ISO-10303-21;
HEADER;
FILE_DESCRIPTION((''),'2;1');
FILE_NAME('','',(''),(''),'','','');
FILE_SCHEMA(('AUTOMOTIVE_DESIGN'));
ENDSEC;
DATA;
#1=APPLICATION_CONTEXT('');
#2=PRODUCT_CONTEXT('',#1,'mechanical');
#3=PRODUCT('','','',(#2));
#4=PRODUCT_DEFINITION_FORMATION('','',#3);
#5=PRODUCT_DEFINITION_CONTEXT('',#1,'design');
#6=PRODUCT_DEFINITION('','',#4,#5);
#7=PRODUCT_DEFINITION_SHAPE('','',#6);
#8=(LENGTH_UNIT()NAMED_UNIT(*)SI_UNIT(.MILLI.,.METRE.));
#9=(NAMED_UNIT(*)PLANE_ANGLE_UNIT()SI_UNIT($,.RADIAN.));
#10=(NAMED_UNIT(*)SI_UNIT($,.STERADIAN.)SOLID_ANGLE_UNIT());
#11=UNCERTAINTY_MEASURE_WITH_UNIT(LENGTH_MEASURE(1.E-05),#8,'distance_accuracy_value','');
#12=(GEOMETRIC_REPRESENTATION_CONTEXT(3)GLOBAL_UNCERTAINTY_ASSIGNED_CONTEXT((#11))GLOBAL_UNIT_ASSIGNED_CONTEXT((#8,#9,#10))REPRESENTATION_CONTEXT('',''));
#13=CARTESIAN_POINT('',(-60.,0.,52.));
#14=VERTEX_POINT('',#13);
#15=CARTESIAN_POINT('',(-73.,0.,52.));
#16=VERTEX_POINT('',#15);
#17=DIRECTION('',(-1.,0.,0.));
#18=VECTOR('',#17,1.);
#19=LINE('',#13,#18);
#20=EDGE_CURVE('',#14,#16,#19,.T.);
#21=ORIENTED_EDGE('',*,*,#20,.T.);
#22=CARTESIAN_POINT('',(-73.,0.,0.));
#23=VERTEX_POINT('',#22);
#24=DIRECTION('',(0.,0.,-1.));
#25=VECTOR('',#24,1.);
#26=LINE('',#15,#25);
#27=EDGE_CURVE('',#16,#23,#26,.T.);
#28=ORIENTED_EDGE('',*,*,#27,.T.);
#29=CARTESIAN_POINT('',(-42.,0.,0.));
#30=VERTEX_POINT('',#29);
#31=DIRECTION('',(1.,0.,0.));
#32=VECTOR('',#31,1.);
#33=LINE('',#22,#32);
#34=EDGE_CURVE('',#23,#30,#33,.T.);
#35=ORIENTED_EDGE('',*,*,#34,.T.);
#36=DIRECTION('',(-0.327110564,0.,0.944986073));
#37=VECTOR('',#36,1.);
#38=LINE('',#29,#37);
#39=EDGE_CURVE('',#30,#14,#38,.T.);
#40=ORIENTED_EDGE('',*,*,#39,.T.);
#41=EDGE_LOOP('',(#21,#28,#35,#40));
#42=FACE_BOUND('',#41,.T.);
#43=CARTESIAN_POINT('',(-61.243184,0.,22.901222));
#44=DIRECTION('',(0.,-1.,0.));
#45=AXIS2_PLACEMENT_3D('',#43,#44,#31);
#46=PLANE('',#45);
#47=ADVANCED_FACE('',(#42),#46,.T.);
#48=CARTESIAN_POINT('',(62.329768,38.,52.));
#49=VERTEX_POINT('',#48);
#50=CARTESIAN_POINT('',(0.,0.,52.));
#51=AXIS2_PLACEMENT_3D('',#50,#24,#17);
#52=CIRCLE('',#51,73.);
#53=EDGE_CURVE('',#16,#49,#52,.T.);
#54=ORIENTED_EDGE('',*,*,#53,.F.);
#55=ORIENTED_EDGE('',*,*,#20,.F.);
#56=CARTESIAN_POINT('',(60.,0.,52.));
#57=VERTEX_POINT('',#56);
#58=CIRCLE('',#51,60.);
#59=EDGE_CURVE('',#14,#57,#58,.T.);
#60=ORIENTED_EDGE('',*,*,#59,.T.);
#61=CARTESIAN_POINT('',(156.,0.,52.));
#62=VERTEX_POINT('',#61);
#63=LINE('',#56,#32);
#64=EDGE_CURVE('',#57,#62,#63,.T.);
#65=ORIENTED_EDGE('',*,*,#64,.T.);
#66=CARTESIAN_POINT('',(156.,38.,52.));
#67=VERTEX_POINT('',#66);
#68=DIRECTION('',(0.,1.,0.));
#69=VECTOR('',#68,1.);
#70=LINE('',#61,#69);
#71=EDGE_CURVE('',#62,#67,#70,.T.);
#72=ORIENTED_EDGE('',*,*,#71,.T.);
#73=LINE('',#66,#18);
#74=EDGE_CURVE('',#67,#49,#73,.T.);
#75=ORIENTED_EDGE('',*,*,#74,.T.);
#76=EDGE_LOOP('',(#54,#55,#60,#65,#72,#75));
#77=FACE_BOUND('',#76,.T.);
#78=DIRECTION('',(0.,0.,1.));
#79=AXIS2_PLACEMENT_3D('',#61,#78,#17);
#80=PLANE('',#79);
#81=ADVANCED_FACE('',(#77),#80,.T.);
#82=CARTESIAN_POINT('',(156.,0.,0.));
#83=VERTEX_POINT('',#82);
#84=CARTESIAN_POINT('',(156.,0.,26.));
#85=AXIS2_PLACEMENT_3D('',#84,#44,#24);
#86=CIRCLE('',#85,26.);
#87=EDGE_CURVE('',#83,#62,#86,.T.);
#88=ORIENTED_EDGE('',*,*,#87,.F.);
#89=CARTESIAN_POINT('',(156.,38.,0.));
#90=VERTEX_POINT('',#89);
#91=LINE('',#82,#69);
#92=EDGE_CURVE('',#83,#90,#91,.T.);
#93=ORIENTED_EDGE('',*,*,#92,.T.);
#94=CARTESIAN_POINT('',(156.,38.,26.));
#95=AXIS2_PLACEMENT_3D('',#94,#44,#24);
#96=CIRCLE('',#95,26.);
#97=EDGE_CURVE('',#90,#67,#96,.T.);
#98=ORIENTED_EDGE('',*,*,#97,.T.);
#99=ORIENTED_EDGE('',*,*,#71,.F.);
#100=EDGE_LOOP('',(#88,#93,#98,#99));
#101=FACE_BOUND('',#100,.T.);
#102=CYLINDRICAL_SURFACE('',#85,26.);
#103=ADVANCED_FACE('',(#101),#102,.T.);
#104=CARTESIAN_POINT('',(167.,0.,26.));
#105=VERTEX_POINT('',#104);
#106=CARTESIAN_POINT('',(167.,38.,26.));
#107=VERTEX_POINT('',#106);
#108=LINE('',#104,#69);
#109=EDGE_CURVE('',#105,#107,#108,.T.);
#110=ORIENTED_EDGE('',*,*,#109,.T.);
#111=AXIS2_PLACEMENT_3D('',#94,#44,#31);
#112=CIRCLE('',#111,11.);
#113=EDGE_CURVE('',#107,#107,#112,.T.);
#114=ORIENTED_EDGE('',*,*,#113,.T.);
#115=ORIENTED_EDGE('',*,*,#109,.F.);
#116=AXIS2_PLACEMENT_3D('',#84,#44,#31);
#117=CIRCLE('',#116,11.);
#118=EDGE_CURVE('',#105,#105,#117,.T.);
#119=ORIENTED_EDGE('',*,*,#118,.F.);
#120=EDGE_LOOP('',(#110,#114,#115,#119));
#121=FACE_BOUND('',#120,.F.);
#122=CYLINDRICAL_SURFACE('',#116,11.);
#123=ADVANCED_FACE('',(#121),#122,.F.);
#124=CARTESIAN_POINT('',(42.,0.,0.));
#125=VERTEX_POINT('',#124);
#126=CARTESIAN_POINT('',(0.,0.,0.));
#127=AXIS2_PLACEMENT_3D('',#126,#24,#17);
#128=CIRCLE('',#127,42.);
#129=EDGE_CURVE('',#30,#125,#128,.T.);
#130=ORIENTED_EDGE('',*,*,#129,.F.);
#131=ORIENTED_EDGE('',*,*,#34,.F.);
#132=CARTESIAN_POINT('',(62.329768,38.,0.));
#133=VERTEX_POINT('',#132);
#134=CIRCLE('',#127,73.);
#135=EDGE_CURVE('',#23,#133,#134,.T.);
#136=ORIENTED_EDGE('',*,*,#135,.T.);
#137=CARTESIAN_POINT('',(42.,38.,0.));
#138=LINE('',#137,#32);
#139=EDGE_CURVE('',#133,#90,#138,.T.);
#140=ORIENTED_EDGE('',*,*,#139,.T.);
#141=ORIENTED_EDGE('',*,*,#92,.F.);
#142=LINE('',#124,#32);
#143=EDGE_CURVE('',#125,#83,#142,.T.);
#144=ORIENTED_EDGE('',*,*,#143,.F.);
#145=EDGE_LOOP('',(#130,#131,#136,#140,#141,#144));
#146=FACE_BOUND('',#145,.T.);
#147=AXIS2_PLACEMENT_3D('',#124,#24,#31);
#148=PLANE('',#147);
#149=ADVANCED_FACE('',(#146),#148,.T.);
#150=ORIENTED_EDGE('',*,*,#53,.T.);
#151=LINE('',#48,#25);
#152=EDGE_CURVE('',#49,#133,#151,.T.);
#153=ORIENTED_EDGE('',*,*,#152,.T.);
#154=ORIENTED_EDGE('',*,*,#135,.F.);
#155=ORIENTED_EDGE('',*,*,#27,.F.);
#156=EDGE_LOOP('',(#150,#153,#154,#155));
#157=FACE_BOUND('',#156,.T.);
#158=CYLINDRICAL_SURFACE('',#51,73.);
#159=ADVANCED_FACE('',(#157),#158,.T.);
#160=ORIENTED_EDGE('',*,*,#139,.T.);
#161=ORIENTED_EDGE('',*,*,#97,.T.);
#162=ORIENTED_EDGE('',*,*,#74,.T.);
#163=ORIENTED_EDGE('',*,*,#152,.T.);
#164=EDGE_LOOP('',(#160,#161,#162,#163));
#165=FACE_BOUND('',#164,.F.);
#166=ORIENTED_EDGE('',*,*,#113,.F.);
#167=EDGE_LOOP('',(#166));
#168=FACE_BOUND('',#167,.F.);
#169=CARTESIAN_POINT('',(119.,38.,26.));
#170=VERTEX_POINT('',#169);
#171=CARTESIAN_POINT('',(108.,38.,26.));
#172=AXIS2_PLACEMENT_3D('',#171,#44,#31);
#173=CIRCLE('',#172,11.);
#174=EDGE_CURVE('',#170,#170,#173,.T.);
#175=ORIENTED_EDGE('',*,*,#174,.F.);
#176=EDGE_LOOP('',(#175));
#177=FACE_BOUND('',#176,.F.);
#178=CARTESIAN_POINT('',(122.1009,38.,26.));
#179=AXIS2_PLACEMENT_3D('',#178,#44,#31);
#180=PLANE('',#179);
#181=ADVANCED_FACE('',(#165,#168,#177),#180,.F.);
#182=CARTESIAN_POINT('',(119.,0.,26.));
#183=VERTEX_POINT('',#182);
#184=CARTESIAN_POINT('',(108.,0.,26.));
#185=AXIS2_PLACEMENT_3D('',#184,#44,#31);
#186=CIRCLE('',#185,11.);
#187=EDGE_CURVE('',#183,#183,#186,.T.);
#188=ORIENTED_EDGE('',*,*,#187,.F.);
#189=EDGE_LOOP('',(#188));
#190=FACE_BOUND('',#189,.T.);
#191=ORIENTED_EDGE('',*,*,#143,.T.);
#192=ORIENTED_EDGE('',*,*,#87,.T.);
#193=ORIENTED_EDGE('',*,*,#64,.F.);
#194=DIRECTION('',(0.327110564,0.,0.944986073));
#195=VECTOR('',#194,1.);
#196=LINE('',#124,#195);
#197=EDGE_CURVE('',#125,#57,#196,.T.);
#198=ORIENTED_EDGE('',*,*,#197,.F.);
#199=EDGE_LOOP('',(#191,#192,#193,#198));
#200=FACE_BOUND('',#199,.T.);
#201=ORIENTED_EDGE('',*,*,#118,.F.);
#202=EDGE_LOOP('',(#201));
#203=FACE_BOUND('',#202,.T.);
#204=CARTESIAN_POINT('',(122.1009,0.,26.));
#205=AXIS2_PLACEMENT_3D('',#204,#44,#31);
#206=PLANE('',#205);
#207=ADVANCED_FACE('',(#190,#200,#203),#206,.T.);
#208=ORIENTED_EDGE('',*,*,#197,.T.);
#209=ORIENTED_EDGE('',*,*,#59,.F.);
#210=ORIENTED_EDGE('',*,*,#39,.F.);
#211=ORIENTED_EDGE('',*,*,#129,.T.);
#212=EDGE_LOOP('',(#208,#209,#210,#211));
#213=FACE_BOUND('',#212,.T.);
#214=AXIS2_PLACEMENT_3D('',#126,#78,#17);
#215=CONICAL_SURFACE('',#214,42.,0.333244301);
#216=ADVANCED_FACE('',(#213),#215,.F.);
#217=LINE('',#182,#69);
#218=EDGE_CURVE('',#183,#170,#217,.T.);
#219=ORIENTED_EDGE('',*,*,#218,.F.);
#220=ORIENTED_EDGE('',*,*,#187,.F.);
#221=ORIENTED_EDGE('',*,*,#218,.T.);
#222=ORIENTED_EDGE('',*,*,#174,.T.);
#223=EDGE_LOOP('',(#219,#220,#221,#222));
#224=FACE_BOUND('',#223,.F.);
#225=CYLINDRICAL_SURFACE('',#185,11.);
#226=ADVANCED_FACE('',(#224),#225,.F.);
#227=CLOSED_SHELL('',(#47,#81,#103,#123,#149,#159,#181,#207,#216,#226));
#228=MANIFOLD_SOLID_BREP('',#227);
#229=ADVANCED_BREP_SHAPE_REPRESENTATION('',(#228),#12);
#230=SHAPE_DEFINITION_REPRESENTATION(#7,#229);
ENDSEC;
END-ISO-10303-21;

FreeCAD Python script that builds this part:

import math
import FreeCAD as App
import Part
import Sketcher

V = App.Vector

doc = App.newDocument("Part")
body = doc.addObject("PartDesign::Body", "Body")

# Sketch on XZ plane
sketch1 = doc.addObject("Sketcher::SketchObject", "Sketch")
body.addObject(sketch1)
sketch1.AttachmentSupport = (doc.XZ_Plane, [""])
sketch1.MapMode = "FlatFace"
sketch1.addGeometry(Part.LineSegment(V(-73, 52, 0), V(-73, 0, 0)), False)
sketch1.addGeometry(Part.LineSegment(V(-73, 0, 0), V(-42, 0, 0)), False)
sketch1.addGeometry(Part.LineSegment(V(-42, 0, 0), V(-60, 52, 0)), False)
sketch1.addGeometry(Part.LineSegment(V(-60, 52, 0), V(-73, 52, 0)), False)
sketch1.addConstraint(Sketcher.Constraint("Coincident", 0, 2, 1, 1))
sketch1.addConstraint(Sketcher.Constraint("Coincident", 1, 2, 2, 1))
sketch1.addConstraint(Sketcher.Constraint("Coincident", 2, 2, 3, 1))
sketch1.addConstraint(Sketcher.Constraint("Coincident", 3, 2, 0, 1))
sketch1.addConstraint(Sketcher.Constraint("Vertical", 0))
sketch1.addConstraint(Sketcher.Constraint("Horizontal", 1))
sketch1.addConstraint(Sketcher.Constraint("Horizontal", 3))
sketch1.addConstraint(Sketcher.Constraint("PointOnObject", 0, 2, -1))
sketch1.addConstraint(Sketcher.Constraint("DistanceX", 1, 1, 1, 2, 31.0))
sketch1.addConstraint(Sketcher.Constraint("DistanceX", 3, 2, 3, 1, 13.0))
sketch1.addConstraint(Sketcher.Constraint("DistanceY", 0, 2, 0, 1, 52.0))
sketch1.addConstraint(Sketcher.Constraint("DistanceX", 0, 2, -1, 1, 73.0))
revolution = doc.addObject("PartDesign::Revolution", "Revolution")
body.addObject(revolution)
revolution.Profile = sketch1
revolution.ReferenceAxis = (sketch1, ["V_Axis"])
revolution.Angle = 180
revolution.Reversed = True

# Sketch on XZ plane
sketch2 = doc.addObject("Sketcher::SketchObject", "Sketch001")
body.addObject(sketch2)
sketch2.AttachmentSupport = (doc.XZ_Plane, [""])
sketch2.MapMode = "FlatFace"
sketch2.addGeometry(Part.LineSegment(V(156, 52, 0), V(60, 52, 0)), False)
sketch2.addGeometry(Part.LineSegment(V(60, 52, 0), V(42, 0, 0)), False)
sketch2.addGeometry(Part.LineSegment(V(42, 0, 0), V(156, 0, 0)), False)
sketch2.addGeometry(Part.ArcOfCircle(Part.Circle(V(156, 26, 0), V(0, 0, 1), 26), math.radians(-90), math.radians(90)), False)
sketch2.addGeometry(Part.Circle(V(108, 26, 0), V(0, 0, 1), 11), False)
sketch2.addGeometry(Part.Circle(V(156, 26, 0), V(0, 0, 1), 11), False)
sketch2.addConstraint(Sketcher.Constraint("Coincident", 0, 2, 1, 1))
sketch2.addConstraint(Sketcher.Constraint("Coincident", 1, 2, 2, 1))
sketch2.addConstraint(Sketcher.Constraint("Tangent", 2, 2, 3, 1))
sketch2.addConstraint(Sketcher.Constraint("Tangent", 3, 2, 0, 1))
sketch2.addConstraint(Sketcher.Constraint("Horizontal", 0))
sketch2.addConstraint(Sketcher.Constraint("Horizontal", 2))
sketch2.addConstraint(Sketcher.Constraint("Coincident", 5, 3, 3, 3))
sketch2.addConstraint(Sketcher.Constraint("Equal", 4, 5))
sketch2.addConstraint(Sketcher.Constraint("PointOnObject", 1, 2, -1))
sketch2.addConstraint(Sketcher.Constraint("Horizontal", 3, 3, 4, 3))
sketch2.addConstraint(Sketcher.Constraint("Diameter", 4, 22.0))
sketch2.addConstraint(Sketcher.Constraint("Radius", 3, 26.0))
sketch2.addConstraint(Sketcher.Constraint("DistanceX", 0, 2, 0, 1, 96.0))
sketch2.addConstraint(Sketcher.Constraint("DistanceX", 2, 1, 2, 2, 114.0))
sketch2.addConstraint(Sketcher.Constraint("DistanceX", -1, 1, 3, 3, 156.0))
sketch2.addConstraint(Sketcher.Constraint("DistanceX", -1, 1, 4, 3, 108.0))
pad1 = doc.addObject("PartDesign::Pad", "Pad")
body.addObject(pad1)
pad1.Profile = sketch2
pad1.Length = 38
pad1.Reversed = True

doc.recompute()
